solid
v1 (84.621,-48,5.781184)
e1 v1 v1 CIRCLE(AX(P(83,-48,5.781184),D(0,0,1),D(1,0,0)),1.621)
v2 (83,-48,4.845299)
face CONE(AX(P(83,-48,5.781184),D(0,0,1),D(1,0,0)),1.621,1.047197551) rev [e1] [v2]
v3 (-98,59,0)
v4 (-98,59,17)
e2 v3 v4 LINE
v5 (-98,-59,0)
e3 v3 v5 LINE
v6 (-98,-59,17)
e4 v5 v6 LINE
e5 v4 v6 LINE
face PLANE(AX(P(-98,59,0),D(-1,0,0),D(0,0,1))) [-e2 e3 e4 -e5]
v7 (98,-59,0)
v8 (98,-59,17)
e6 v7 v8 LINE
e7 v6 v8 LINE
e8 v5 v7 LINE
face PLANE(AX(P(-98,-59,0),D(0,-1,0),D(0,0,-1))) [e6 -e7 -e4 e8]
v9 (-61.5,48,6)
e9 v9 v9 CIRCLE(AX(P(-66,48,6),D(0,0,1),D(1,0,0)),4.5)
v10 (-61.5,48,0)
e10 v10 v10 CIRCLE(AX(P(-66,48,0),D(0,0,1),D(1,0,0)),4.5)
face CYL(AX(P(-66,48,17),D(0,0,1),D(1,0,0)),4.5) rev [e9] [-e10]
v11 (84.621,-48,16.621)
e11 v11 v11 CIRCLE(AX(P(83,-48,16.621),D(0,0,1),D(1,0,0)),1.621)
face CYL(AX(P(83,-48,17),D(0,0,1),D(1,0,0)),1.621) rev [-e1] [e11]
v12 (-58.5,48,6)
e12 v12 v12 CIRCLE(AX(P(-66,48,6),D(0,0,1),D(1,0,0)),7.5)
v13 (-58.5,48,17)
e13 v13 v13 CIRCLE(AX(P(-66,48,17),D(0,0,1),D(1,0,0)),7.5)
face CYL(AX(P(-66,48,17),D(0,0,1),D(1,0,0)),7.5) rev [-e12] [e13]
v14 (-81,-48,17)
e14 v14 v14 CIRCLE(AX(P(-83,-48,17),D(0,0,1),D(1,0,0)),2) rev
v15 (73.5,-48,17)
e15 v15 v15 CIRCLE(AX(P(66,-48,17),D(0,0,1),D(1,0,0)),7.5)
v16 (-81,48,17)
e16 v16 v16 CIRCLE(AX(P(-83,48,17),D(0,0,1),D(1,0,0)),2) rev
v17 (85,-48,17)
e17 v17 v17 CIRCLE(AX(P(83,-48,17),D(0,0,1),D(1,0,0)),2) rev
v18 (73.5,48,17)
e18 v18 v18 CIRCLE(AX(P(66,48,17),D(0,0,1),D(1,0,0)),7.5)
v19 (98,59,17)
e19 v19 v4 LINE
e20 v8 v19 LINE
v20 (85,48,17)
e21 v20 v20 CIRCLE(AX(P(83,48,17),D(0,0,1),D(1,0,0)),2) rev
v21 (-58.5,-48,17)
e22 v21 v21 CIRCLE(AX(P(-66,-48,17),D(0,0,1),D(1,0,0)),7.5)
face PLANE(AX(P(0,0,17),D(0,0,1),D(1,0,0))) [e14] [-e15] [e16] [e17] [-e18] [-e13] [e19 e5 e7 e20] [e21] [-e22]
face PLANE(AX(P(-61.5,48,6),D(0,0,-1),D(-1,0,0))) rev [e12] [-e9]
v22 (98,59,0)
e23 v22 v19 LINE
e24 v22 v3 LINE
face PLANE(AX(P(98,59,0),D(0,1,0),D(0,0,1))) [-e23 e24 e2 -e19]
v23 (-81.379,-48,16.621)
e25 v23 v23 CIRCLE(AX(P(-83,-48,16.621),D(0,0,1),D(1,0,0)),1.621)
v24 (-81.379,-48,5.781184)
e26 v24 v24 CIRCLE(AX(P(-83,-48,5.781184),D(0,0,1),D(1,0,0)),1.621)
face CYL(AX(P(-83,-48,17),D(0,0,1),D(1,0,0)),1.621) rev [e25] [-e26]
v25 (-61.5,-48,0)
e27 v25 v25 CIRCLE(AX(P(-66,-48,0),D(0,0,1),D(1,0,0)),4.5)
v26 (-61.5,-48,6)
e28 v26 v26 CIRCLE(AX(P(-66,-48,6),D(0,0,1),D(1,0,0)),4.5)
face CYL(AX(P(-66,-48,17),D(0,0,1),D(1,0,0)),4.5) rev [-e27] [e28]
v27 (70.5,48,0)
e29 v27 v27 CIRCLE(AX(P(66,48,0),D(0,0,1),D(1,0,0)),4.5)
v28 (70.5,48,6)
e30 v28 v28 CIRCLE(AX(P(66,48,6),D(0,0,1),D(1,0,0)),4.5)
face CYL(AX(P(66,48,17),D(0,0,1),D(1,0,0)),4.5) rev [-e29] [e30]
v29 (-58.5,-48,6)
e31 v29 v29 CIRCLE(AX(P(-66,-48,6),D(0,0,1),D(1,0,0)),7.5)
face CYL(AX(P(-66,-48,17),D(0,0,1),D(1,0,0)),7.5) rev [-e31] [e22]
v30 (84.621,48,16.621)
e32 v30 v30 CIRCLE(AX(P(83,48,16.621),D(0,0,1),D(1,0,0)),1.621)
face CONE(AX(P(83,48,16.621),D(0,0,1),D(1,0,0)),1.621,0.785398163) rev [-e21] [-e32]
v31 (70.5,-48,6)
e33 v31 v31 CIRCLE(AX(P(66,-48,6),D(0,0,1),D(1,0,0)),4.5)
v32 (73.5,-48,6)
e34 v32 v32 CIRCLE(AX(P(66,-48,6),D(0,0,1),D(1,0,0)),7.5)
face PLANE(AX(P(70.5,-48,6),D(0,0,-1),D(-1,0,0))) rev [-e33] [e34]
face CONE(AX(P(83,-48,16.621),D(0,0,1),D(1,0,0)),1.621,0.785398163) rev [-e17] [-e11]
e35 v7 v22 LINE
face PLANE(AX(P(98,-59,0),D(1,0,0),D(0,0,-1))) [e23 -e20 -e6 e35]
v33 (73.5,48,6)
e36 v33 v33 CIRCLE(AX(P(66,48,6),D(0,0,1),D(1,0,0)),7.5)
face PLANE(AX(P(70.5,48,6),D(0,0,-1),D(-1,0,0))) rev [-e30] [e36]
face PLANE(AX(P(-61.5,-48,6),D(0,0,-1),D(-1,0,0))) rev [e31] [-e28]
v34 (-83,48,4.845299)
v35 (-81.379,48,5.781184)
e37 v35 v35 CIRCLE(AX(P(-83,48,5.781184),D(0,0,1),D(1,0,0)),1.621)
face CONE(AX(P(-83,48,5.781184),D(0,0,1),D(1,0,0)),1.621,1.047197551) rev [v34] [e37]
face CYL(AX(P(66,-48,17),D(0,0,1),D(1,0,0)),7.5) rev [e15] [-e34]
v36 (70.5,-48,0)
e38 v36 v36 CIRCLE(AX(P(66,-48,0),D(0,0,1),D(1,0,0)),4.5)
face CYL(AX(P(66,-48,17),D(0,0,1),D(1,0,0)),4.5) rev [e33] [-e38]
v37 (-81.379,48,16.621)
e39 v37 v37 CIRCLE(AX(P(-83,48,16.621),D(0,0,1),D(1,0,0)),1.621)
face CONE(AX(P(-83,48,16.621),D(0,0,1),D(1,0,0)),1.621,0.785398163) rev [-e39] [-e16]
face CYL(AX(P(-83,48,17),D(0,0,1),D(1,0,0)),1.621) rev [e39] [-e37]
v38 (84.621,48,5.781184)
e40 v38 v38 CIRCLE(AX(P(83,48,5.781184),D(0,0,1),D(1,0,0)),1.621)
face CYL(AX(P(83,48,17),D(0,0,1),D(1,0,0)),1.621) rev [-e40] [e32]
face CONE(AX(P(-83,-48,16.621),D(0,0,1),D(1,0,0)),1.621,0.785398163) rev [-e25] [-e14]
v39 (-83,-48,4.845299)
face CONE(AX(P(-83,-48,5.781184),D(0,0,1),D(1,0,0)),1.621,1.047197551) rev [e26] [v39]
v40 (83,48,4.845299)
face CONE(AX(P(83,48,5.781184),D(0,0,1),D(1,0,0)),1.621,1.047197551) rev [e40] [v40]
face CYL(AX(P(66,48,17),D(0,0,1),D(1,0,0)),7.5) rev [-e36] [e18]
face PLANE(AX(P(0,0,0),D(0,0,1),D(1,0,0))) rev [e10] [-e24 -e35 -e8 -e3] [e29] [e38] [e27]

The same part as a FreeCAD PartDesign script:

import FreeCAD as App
import Part
import Sketcher
from FreeCAD import Vector
Q = App.Units.Quantity


def edges_at(feature, points):
    """Names of the edges that pass closest to the given points."""
    edges = feature.Shape.Edges
    near = lambda p: min(range(len(edges)), key=lambda i: edges[i].distToShape(Part.Vertex(*p))[0])
    return sorted({f"Edge{near(p) + 1}" for p in points})


def add_polygon(sketch, points):
    """Adds a closed chain of lines whose ends are joined by coincident constraints."""
    first, n = sketch.GeometryCount, len(points)
    for a, b in zip(points, points[1:] + points[:1]):
        sketch.addGeometry(Part.LineSegment(App.Vector(*a, 0), App.Vector(*b, 0)), False)
    for i in range(n):
        sketch.addConstraint(Sketcher.Constraint("Coincident", first + i, 2, first + (i + 1) % n, 1))

doc = App.newDocument("Part")
body = doc.addObject("PartDesign::Body", "Body")

sketch1 = body.newObject("Sketcher::SketchObject", "Sketch")
sketch1.AttachmentSupport = (doc.getObject("XY_Plane"), [""])
sketch1.MapMode = "FlatFace"
sketch1.AttachmentOffset = App.Placement(Vector(0, 0, 17), App.Rotation())
add_polygon(sketch1, [(-98, 59), (-98, -59), (98, -59), (98, 59)])
sketch1.addConstraint([
    Sketcher.Constraint("Vertical", 0),
    Sketcher.Constraint("Horizontal", 1),
    Sketcher.Constraint("Vertical", 2),
    Sketcher.Constraint("Horizontal", 3),
    Sketcher.Constraint("Symmetric", 0, 2, 2, 2, -1, 1),
    Sketcher.Constraint("DistanceX", 1, 1, 1, 2, Q("196 mm")),
    Sketcher.Constraint("DistanceY", 0, 2, 0, 1, Q("118 mm")),
])
pad1 = body.newObject("PartDesign::Pad", "Pad")
pad1.Profile = sketch1
pad1.Length = 17
pad1.Reversed = True

sketch2 = body.newObject("Sketcher::SketchObject", "Sketch001")
sketch2.AttachmentSupport = (doc.getObject("XY_Plane"), [""])
sketch2.MapMode = "FlatFace"
sketch2.AttachmentOffset = App.Placement(Vector(0, 0, 17), App.Rotation())
sketch2.addGeometry([
    Part.Circle(Vector(-83, 48, 0), Vector(0, 0, 1), 1.6),
    Part.Circle(Vector(-83, -48, 0), Vector(0, 0, 1), 1.6),
    Part.Circle(Vector(83, 48, 0), Vector(0, 0, 1), 1.6),
    Part.Circle(Vector(83, -48, 0), Vector(0, 0, 1), 1.6),
], False)
sketch2.addConstraint([
    Sketcher.Constraint("Equal", 0, 1),
    Sketcher.Constraint("Equal", 1, 2),
    Sketcher.Constraint("Equal", 2, 3),
    Sketcher.Constraint("Symmetric", 1, 3, 2, 3, -1, 1),
    Sketcher.Constraint("Symmetric", 0, 3, 3, 3, -1, 1),
    Sketcher.Constraint("Symmetric", 0, 3, 2, 3, -2),
    Sketcher.Constraint("Diameter", 0, Q("3.242 mm")),
    Sketcher.Constraint("DistanceX", 0, 3, -1, 1, Q("83 mm")),
    Sketcher.Constraint("DistanceY", -1, 1, 0, 3, Q("48 mm")),
])
doc.recompute()
hole = body.newObject("PartDesign::Hole", "Hole")
hole.Profile = sketch2
hole.ThreadType = "None"
hole.Diameter = 3.242
hole.DepthType = "Dimension"
hole.Depth = 11.218816
hole.DrillPoint = "Angled"
hole.DrillPointAngle = 120

sketch3 = body.newObject("Sketcher::SketchObject", "Sketch002")
sketch3.AttachmentSupport = (doc.getObject("XY_Plane"), [""])
sketch3.MapMode = "FlatFace"
sketch3.AttachmentOffset = App.Placement(Vector(0, 0, 17), App.Rotation())
sketch3.addGeometry([
    Part.Circle(Vector(66, 48, 0), Vector(0, 0, 1), 4.5),
    Part.Circle(Vector(66, -48, 0), Vector(0, 0, 1), 4.5),
    Part.Circle(Vector(-66, 48, 0), Vector(0, 0, 1), 4.5),
    Part.Circle(Vector(-66, -48, 0), Vector(0, 0, 1), 4.5),
], False)
sketch3.addConstraint([
    Sketcher.Constraint("Equal", 0, 1),
    Sketcher.Constraint("Equal", 1, 2),
    Sketcher.Constraint("Equal", 2, 3),
    Sketcher.Constraint("Symmetric", 1, 3, 2, 3, -1, 1),
    Sketcher.Constraint("Symmetric", 0, 3, 3, 3, -1, 1),
    Sketcher.Constraint("Symmetric", 0, 3, 2, 3, -2),
    Sketcher.Constraint("Diameter", 0, Q("9 mm")),
    Sketcher.Constraint("DistanceX", -1, 1, 0, 3, Q("66 mm")),
    Sketcher.Constraint("DistanceY", -1, 1, 0, 3, Q("48 mm")),
])
doc.recompute()
hole2 = body.newObject("PartDesign::Hole", "Hole001")
hole2.Profile = sketch3
hole2.ThreadType = "None"
hole2.Diameter = 9
hole2.DepthType = "ThroughAll"
hole2.HoleCutType = "Counterbore"
hole2.HoleCutDiameter = 15
hole2.HoleCutDepth = 11
doc.recompute()

chamfer = body.newObject("PartDesign::Chamfer", "Chamfer")
chamfer.Base = (hole2, edges_at(hole2, [
    (84.621, -48, 17),
    (84.621, 48, 17),
    (-81.379, -48, 17),
    (-81.379, 48, 17),
]))
chamfer.Size = 0.379

doc.recompute()
